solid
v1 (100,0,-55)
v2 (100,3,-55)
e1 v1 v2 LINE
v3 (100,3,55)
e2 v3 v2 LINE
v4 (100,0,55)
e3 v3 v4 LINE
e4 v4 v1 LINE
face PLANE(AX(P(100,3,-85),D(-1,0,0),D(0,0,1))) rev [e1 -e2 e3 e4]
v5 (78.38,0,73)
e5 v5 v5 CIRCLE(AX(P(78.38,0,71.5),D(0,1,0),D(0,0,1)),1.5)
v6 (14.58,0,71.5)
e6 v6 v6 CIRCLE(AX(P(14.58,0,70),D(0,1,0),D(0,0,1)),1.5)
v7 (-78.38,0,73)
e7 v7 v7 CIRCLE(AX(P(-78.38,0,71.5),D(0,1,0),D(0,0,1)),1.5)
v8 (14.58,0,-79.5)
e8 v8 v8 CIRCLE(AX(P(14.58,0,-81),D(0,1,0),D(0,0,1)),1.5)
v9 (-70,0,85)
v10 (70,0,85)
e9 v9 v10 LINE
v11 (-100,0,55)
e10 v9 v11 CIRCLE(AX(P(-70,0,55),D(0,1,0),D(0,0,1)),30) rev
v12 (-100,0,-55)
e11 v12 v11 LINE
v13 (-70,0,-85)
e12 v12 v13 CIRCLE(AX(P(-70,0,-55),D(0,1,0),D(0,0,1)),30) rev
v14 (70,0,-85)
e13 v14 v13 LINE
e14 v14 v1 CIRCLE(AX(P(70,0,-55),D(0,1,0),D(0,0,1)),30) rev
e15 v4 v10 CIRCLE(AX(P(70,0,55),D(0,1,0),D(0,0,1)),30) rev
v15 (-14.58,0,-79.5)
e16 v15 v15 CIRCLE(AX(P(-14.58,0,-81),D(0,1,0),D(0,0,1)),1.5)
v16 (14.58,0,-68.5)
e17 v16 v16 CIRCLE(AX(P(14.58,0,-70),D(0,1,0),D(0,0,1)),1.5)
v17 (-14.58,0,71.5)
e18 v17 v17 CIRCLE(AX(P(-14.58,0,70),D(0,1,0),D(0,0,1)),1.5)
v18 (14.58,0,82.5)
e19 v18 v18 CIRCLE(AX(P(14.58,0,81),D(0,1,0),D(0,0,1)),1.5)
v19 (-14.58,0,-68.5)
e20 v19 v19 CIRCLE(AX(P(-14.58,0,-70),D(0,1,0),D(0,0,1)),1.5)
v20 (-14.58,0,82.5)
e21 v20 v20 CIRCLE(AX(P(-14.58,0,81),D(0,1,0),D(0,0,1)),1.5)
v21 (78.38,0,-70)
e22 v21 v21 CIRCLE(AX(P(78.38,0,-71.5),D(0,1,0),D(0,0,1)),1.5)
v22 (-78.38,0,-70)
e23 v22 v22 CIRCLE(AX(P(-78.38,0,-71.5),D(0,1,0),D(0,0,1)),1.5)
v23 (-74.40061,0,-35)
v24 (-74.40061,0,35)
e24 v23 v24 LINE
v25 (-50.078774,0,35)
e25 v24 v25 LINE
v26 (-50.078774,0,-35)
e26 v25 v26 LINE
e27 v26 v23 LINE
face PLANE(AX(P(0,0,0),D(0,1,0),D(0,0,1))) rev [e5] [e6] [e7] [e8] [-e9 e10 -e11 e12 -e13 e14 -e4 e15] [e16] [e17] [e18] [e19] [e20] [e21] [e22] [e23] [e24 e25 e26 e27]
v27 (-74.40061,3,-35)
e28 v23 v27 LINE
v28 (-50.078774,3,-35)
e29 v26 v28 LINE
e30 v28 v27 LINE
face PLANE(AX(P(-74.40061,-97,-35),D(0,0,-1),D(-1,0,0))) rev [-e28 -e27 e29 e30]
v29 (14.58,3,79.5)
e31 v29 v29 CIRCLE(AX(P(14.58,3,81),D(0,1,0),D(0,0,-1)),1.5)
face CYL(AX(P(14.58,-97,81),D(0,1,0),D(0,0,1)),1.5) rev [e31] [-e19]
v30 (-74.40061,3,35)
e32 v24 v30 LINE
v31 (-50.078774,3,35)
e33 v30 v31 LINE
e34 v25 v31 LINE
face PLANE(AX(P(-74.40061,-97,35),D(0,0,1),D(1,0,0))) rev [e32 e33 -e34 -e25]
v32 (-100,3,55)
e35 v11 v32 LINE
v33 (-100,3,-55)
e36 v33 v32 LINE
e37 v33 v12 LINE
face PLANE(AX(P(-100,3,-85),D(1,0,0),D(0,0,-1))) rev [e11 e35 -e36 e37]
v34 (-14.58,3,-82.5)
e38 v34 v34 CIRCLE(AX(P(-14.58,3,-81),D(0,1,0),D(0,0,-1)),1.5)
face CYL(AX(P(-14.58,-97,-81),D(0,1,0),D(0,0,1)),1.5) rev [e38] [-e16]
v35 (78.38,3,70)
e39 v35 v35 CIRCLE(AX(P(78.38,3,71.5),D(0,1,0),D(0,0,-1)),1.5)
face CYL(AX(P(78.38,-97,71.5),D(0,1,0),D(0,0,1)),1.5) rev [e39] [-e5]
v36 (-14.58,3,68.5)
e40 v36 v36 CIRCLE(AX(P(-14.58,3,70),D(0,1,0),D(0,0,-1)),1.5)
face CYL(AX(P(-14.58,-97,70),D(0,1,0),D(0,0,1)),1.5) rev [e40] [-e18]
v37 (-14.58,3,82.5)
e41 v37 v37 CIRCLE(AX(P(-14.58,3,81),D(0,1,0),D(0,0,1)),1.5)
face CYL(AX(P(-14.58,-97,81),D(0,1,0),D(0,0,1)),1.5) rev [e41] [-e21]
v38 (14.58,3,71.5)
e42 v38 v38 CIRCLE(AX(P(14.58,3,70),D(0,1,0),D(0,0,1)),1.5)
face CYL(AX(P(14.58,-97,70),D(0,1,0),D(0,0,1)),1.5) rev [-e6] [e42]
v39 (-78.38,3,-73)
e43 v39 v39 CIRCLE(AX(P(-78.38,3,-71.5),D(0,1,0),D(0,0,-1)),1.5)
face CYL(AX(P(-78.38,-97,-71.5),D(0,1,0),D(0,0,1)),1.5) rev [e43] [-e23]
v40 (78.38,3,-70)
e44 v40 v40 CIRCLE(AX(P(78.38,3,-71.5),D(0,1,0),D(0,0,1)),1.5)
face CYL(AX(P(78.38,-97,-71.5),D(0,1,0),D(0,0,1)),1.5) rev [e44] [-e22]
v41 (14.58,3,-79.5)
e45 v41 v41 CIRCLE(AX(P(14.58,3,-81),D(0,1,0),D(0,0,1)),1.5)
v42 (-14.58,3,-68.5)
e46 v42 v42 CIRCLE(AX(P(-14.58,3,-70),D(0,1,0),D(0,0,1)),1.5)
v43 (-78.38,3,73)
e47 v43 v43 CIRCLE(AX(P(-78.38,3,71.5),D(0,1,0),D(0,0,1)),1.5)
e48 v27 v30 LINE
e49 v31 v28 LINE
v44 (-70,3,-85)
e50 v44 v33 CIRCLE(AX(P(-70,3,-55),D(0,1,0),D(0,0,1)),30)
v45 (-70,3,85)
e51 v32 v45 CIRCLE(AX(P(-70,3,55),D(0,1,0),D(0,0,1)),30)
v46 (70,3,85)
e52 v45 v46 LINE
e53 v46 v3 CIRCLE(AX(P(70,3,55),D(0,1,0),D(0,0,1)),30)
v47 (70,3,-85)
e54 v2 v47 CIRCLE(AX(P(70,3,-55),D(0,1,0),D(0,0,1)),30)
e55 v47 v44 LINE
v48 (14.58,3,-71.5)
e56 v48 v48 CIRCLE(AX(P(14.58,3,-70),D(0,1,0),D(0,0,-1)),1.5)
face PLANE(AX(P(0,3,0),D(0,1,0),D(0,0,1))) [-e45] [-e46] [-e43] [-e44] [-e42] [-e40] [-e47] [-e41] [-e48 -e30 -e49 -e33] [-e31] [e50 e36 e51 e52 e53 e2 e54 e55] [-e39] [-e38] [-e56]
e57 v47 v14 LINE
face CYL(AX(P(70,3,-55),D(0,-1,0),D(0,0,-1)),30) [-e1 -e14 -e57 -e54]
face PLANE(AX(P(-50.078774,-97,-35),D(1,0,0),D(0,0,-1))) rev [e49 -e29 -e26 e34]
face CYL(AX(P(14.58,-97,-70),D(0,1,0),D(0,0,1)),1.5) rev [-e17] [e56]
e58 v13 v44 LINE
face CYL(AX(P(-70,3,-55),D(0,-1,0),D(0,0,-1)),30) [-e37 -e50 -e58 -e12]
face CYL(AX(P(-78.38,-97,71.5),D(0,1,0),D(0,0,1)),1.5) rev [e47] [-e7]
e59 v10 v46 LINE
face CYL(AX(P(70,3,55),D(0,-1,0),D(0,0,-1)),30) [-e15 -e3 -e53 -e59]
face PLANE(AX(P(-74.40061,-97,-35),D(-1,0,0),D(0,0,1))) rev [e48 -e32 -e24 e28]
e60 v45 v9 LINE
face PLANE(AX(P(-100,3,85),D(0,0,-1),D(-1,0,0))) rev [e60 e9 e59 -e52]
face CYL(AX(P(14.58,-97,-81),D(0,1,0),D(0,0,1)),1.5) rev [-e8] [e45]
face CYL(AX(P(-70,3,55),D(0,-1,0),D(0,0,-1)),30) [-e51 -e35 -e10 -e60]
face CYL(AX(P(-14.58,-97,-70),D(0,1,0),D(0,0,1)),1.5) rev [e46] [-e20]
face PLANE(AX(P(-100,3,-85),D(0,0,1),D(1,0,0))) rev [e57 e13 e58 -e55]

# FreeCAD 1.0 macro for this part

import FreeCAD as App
import Part
import Sketcher


def edges_at(feature, points):
    """Names of the edges that pass closest to the given points."""
    edges = feature.Shape.Edges
    near = lambda p: min(range(len(edges)), key=lambda i: edges[i].distToShape(Part.Vertex(*p))[0])
    return sorted({f"Edge{near(p) + 1}" for p in points})


def add_polygon(sketch, points):
    """Adds a closed chain of lines whose ends are joined by coincident constraints."""
    first, n = sketch.GeometryCount, len(points)
    for a, b in zip(points, points[1:] + points[:1]):
        sketch.addGeometry(Part.LineSegment(App.Vector(*a, 0), App.Vector(*b, 0)), False)
    for i in range(n):
        sketch.addConstraint(Sketcher.Constraint("Coincident", first + i, 2, first + (i + 1) % n, 1))

doc = App.newDocument("Part")
params = doc.addObject("Spreadsheet::Sheet", "Params")
for row, (alias, value) in enumerate([
    ("sketch1_width", "200 mm"),
    ("sketch1_height", "170 mm"),
    ("pad1_length", "3 mm"),
    ("sketch2_height", "70 mm"),
    ("pocket1_length", "100 mm"),
    ("sketch3_diameter", "3 mm"),
    ("pocket2_length", "100 mm"),
    ("sketch4_diameter", "3 mm"),
    ("pocket3_length", "100 mm"),
    ("fillet_radius", "30 mm"),
], start=1):
    params.set(f"A{row}", alias)
    params.set(f"B{row}", "=" + value)
    params.setAlias(f"B{row}", alias)

body = doc.addObject("PartDesign::Body", "Body")

sketch1 = doc.addObject("Sketcher::SketchObject", "Sketch")
body.addObject(sketch1)
sketch1.AttachmentSupport = (doc.XZ_Plane, [""])
sketch1.MapMode = "FlatFace"
add_polygon(sketch1, [(-100, -85), (-100, 85), (100, 85), (100, -85)])
sketch1.addConstraint(Sketcher.Constraint("Vertical", 0))
sketch1.addConstraint(Sketcher.Constraint("Horizontal", 1))
sketch1.addConstraint(Sketcher.Constraint("Vertical", 2))
sketch1.addConstraint(Sketcher.Constraint("Horizontal", 3))
sketch1.addConstraint(Sketcher.Constraint("Symmetric", 0, 2, 2, 2, -1, 1))
sketch1.addConstraint(Sketcher.Constraint("DistanceX", 1, 1, 1, 2, 200.0))
sketch1.addConstraint(Sketcher.Constraint("DistanceY", 0, 1, 0, 2, 170.0))
sketch1.setExpression("Constraints[9]", "Params.sketch1_width")
sketch1.setExpression("Constraints[10]", "Params.sketch1_height")
pad1 = doc.addObject("PartDesign::Pad", "Pad")
body.addObject(pad1)
pad1.Profile = sketch1
pad1.setExpression("Length", "Params.pad1_length")
pad1.Reversed = True

sketch2 = doc.addObject("Sketcher::SketchObject", "Sketch001")
body.addObject(sketch2)
sketch2.AttachmentSupport = (doc.XZ_Plane, [""])
sketch2.MapMode = "FlatFace"
sketch2.AttachmentOffset = App.Placement(App.Vector(0, 0, -3), App.Rotation())
add_polygon(sketch2, [(-74, -35), (-74, 35), (-50, 35), (-50, -35)])
sketch2.addConstraint(Sketcher.Constraint("Vertical", 0))
sketch2.addConstraint(Sketcher.Constraint("Horizontal", 1))
sketch2.addConstraint(Sketcher.Constraint("Vertical", 2))
sketch2.addConstraint(Sketcher.Constraint("Horizontal", 3))
sketch2.addConstraint(Sketcher.Constraint("DistanceY", 0, 1, 0, 2, 70.0))
sketch2.addConstraint(Sketcher.Constraint("DistanceY", -1, 1, 0, 2, 35.0))
sketch2.addConstraint(Sketcher.Constraint("DistanceX", 1, 1, 1, 2, 24.321835))
sketch2.addConstraint(Sketcher.Constraint("DistanceX", 0, 2, -1, 1, 74.40061))
sketch2.setExpression("Constraints[8]", "Params.sketch2_height")
pocket1 = doc.addObject("PartDesign::Pocket", "Pocket")
body.addObject(pocket1)
pocket1.Profile = sketch2
pocket1.setExpression("Length", "Params.pocket1_length")
pocket1.Reversed = True

sketch3 = doc.addObject("Sketcher::SketchObject", "Sketch002")
body.addObject(sketch3)
sketch3.AttachmentSupport = (doc.XZ_Plane, [""])
sketch3.MapMode = "FlatFace"
sketch3.AttachmentOffset = App.Placement(App.Vector(0, 0, -3), App.Rotation())
sketch3.addGeometry(Part.Circle(App.Vector(-78.4, 71.5, 0), App.Vector(0, 0, 1), 1.5), False)
sketch3.addGeometry(Part.Circle(App.Vector(-78.4, -71.5, 0), App.Vector(0, 0, 1), 1.5), False)
sketch3.addGeometry(Part.Circle(App.Vector(78.4, -71.5, 0), App.Vector(0, 0, 1), 1.5), False)
sketch3.addGeometry(Part.Circle(App.Vector(78.4, 71.5, 0), App.Vector(0, 0, 1), 1.5), False)
sketch3.addConstraint(Sketcher.Constraint("Equal", 0, 1))
sketch3.addConstraint(Sketcher.Constraint("Equal", 1, 2))
sketch3.addConstraint(Sketcher.Constraint("Equal", 2, 3))
sketch3.addConstraint(Sketcher.Constraint("Symmetric", 0, 3, 2, 3, -1, 1))
sketch3.addConstraint(Sketcher.Constraint("Symmetric", 1, 3, 3, 3, -1, 1))
sketch3.addConstraint(Sketcher.Constraint("Symmetric", 1, 3, 2, 3, -2))
sketch3.addConstraint(Sketcher.Constraint("Diameter", 0, 3.0))
sketch3.addConstraint(Sketcher.Constraint("DistanceY", 1, 3, 0, 3, 143.0))
sketch3.addConstraint(Sketcher.Constraint("DistanceX", 0, 3, -1, 1, 78.38))
sketch3.setExpression("Constraints[6]", "Params.sketch3_diameter")
pocket2 = doc.addObject("PartDesign::Pocket", "Pocket001")
body.addObject(pocket2)
pocket2.Profile = sketch3
pocket2.setExpression("Length", "Params.pocket2_length")
pocket2.Reversed = True

sketch4 = doc.addObject("Sketcher::SketchObject", "Sketch003")
body.addObject(sketch4)
sketch4.AttachmentSupport = (doc.XZ_Plane, [""])
sketch4.MapMode = "FlatFace"
sketch4.AttachmentOffset = App.Placement(App.Vector(0, 0, -3), App.Rotation())
sketch4.addGeometry(Part.Circle(App.Vector(-14.6, 81, 0), App.Vector(0, 0, 1), 1.5), False)
sketch4.addGeometry(Part.Circle(App.Vector(14.6, 81, 0), App.Vector(0, 0, 1), 1.5), False)
sketch4.addGeometry(Part.Circle(App.Vector(-14.6, 70, 0), App.Vector(0, 0, 1), 1.5), False)
sketch4.addGeometry(Part.Circle(App.Vector(14.6, 70, 0), App.Vector(0, 0, 1), 1.5), False)
sketch4.addGeometry(Part.Circle(App.Vector(-14.6, -81, 0), App.Vector(0, 0, 1), 1.5), False)
sketch4.addGeometry(Part.Circle(App.Vector(-14.6, -70, 0), App.Vector(0, 0, 1), 1.5), False)
sketch4.addGeometry(Part.Circle(App.Vector(14.6, -81, 0), App.Vector(0, 0, 1), 1.5), False)
sketch4.addGeometry(Part.Circle(App.Vector(14.6, -70, 0), App.Vector(0, 0, 1), 1.5), False)
sketch4.addConstraint(Sketcher.Constraint("Equal", 0, 1))
sketch4.addConstraint(Sketcher.Constraint("Equal", 1, 2))
sketch4.addConstraint(Sketcher.Constraint("Equal", 2, 3))
sketch4.addConstraint(Sketcher.Constraint("Equal", 3, 4))
sketch4.addConstraint(Sketcher.Constraint("Equal", 4, 5))
sketch4.addConstraint(Sketcher.Constraint("Equal", 5, 6))
sketch4.addConstraint(Sketcher.Constraint("Equal", 6, 7))
sketch4.addConstraint(Sketcher.Constraint("Symmetric", 1, 3, 4, 3, -1, 1))
sketch4.addConstraint(Sketcher.Constraint("Symmetric", 3, 3, 5, 3, -1, 1))
sketch4.addConstraint(Sketcher.Constraint("Symmetric", 0, 3, 6, 3, -1, 1))
sketch4.addConstraint(Sketcher.Constraint("Symmetric", 2, 3, 7, 3, -1, 1))
sketch4.addConstraint(Sketcher.Constraint("Symmetric", 0, 3, 1, 3, -2))
sketch4.addConstraint(Sketcher.Constraint("Symmetric", 2, 3, 3, 3, -2))
sketch4.addConstraint(Sketcher.Constraint("Vertical", 0, 3, 2, 3))
sketch4.addConstraint(Sketcher.Constraint("Diameter", 0, 3.0))
sketch4.addConstraint(Sketcher.Constraint("DistanceY", -1, 1, 0, 3, 81.0))
sketch4.addConstraint(Sketcher.Constraint("DistanceY", -1, 1, 2, 3, 70.0))
sketch4.addConstraint(Sketcher.Constraint("DistanceX", 0, 3, -1, 1, 14.58))
sketch4.setExpression("Constraints[14]", "Params.sketch4_diameter")
pocket3 = doc.addObject("PartDesign::Pocket", "Pocket002")
body.addObject(pocket3)
pocket3.Profile = sketch4
pocket3.setExpression("Length", "Params.pocket3_length")
pocket3.Reversed = True
doc.recompute()

fillet = doc.addObject("PartDesign::Fillet", "Fillet")
body.addObject(fillet)
fillet.Base = (pocket3, edges_at(pocket3, [
    (100, 1.5, 85),
    (-100, 1.5, 85),
    (-100, 1.5, -85),
    (100, 1.5, -85),
]))
fillet.setExpression("Radius", "Params.fillet_radius")

doc.recompute()
